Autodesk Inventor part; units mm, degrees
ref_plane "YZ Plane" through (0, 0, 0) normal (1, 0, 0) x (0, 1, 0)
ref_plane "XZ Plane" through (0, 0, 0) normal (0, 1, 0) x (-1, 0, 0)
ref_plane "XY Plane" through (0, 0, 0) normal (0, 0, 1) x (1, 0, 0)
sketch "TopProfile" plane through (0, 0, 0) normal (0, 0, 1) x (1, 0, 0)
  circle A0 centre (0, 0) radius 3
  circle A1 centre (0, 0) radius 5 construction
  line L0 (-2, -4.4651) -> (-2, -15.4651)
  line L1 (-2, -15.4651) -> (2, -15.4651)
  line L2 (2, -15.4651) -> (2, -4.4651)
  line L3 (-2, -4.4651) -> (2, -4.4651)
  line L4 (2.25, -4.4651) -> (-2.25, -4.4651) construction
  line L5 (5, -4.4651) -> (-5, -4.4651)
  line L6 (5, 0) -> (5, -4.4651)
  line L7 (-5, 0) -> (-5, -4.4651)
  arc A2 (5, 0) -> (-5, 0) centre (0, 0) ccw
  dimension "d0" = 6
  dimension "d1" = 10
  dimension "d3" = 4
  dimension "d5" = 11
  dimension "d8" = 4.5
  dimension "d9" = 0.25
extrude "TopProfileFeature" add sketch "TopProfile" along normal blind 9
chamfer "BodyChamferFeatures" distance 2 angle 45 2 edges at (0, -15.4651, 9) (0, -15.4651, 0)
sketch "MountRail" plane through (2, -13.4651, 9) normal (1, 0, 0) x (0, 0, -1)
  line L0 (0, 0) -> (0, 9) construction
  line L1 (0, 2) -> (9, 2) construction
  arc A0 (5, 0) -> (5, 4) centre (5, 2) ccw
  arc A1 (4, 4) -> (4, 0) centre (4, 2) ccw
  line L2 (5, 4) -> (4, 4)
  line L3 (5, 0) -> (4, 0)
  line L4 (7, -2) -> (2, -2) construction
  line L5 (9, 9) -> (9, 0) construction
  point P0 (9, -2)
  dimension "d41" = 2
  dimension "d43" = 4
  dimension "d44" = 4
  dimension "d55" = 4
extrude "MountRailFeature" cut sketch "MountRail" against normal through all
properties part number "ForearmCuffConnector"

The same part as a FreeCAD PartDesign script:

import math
import FreeCAD as App
import Part
import Sketcher

V = App.Vector


def edges_at(feature, points):
    """Names of the edges that pass closest to the given points."""
    edges = feature.Shape.Edges
    near = lambda p: min(range(len(edges)), key=lambda i: edges[i].distToShape(Part.Vertex(*p))[0])
    return sorted({f"Edge{near(p) + 1}" for p in points})

doc = App.newDocument("Part")
body = doc.addObject("PartDesign::Body", "Body")

# Sketch on XY plane
sketch1 = doc.addObject("Sketcher::SketchObject", "Sketch")
body.addObject(sketch1)
sketch1.AttachmentSupport = (doc.XY_Plane, [""])
sketch1.MapMode = "FlatFace"
sketch1.addGeometry([
    Part.LineSegment(V(2, -15.4651, 0), V(2, -4.4651, 0)),  # 0
    Part.LineSegment(V(2, -4.4651, 0), V(5, -4.4651, 0)),  # 1
    Part.LineSegment(V(5, -4.4651, 0), V(5, 0, 0)),  # 2
    Part.ArcOfCircle(Part.Circle(V(0, 0, 0), V(0, 0, 1), 5), math.radians(0), math.radians(180)),  # 3
    Part.LineSegment(V(-5, 0, 0), V(-5, -4.4651, 0)),  # 4
    Part.LineSegment(V(-5, -4.4651, 0), V(-2, -4.4651, 0)),  # 5
    Part.LineSegment(V(-2, -4.4651, 0), V(-2, -15.4651, 0)),  # 6
    Part.LineSegment(V(-2, -15.4651, 0), V(2, -15.4651, 0)),  # 7
    Part.Circle(V(0, 0, 0), V(0, 0, 1), 3),  # 8
], False)
sketch1.addConstraint([
    Sketcher.Constraint("Coincident", 0, 2, 1, 1),
    Sketcher.Constraint("Coincident", 1, 2, 2, 1),
    Sketcher.Constraint("Tangent", 2, 2, 3, 1),
    Sketcher.Constraint("Tangent", 3, 2, 4, 1),
    Sketcher.Constraint("Coincident", 4, 2, 5, 1),
    Sketcher.Constraint("Coincident", 5, 2, 6, 1),
    Sketcher.Constraint("Coincident", 6, 2, 7, 1),
    Sketcher.Constraint("Coincident", 7, 2, 0, 1),
    Sketcher.Constraint("Vertical", 0),
    Sketcher.Constraint("Horizontal", 1),
    Sketcher.Constraint("Vertical", 2),
    Sketcher.Constraint("Vertical", 4),
    Sketcher.Constraint("Horizontal", 5),
    Sketcher.Constraint("Vertical", 6),
    Sketcher.Constraint("Horizontal", 7),
    Sketcher.Constraint("Coincident", 3, 3, -1, 1),
    Sketcher.Constraint("Coincident", 8, 3, -1, 1),
    Sketcher.Constraint("Symmetric", 0, 2, 5, 2, -2),
    Sketcher.Constraint("Diameter", 8, 6.0),
    Sketcher.Constraint("Radius", 3, 5.0),
    Sketcher.Constraint("DistanceX", 7, 1, 7, 2, 4.0),
    Sketcher.Constraint("DistanceY", 0, 1, 0, 2, 11.0),
    Sketcher.Constraint("DistanceY", 2, 1, 2, 2, 4.465),
])
pad1 = doc.addObject("PartDesign::Pad", "Pad")
body.addObject(pad1)
pad1.Profile = sketch1
pad1.Length = 9
doc.recompute()

chamfer = doc.addObject("PartDesign::Chamfer", "Chamfer")
body.addObject(chamfer)
chamfer.Base = (pad1, edges_at(pad1, [(0, -15.465, 9), (0, -15.465, 0)]))
chamfer.Size = 2

# Sketch on YZ plane
sketch2 = doc.addObject("Sketcher::SketchObject", "Sketch001")
body.addObject(sketch2)
sketch2.AttachmentSupport = (doc.YZ_Plane, [""])
sketch2.MapMode = "FlatFace"
sketch2.AttachmentOffset = App.Placement(V(0, 0, 2), App.Rotation())
sketch2.addGeometry([
    Part.LineSegment(V(-13.4651, 5, 0), V(-13.4651, 4, 0)),
    Part.ArcOfCircle(Part.Circle(V(-11.4651, 4, 0), V(0, 0, 1), 2), math.radians(180), math.radians(360)),
    Part.LineSegment(V(-9.4651, 4, 0), V(-9.4651, 5, 0)),
    Part.ArcOfCircle(Part.Circle(V(-11.4651, 5, 0), V(0, 0, 1), 2), math.radians(0), math.radians(180)),
], False)
sketch2.addConstraint([
    Sketcher.Constraint("Tangent", 0, 2, 1, 1),
    Sketcher.Constraint("Tangent", 1, 2, 2, 1),
    Sketcher.Constraint("Tangent", 2, 2, 3, 1),
    Sketcher.Constraint("Tangent", 3, 2, 0, 1),
    Sketcher.Constraint("Vertical", 0),
    Sketcher.Constraint("Vertical", 2),
    Sketcher.Constraint("Radius", 1, 2.0),
    Sketcher.Constraint("DistanceY", -1, 1, 1, 3, 4.0),
    Sketcher.Constraint("DistanceY", 0, 2, 0, 1, 1.0),
    Sketcher.Constraint("DistanceX", 1, 3, -1, 1, 11.465),
])
pocket1 = doc.addObject("PartDesign::Pocket", "Pocket")
body.addObject(pocket1)
pocket1.Profile = sketch2
pocket1.Type = "ThroughAll"

doc.recompute()
